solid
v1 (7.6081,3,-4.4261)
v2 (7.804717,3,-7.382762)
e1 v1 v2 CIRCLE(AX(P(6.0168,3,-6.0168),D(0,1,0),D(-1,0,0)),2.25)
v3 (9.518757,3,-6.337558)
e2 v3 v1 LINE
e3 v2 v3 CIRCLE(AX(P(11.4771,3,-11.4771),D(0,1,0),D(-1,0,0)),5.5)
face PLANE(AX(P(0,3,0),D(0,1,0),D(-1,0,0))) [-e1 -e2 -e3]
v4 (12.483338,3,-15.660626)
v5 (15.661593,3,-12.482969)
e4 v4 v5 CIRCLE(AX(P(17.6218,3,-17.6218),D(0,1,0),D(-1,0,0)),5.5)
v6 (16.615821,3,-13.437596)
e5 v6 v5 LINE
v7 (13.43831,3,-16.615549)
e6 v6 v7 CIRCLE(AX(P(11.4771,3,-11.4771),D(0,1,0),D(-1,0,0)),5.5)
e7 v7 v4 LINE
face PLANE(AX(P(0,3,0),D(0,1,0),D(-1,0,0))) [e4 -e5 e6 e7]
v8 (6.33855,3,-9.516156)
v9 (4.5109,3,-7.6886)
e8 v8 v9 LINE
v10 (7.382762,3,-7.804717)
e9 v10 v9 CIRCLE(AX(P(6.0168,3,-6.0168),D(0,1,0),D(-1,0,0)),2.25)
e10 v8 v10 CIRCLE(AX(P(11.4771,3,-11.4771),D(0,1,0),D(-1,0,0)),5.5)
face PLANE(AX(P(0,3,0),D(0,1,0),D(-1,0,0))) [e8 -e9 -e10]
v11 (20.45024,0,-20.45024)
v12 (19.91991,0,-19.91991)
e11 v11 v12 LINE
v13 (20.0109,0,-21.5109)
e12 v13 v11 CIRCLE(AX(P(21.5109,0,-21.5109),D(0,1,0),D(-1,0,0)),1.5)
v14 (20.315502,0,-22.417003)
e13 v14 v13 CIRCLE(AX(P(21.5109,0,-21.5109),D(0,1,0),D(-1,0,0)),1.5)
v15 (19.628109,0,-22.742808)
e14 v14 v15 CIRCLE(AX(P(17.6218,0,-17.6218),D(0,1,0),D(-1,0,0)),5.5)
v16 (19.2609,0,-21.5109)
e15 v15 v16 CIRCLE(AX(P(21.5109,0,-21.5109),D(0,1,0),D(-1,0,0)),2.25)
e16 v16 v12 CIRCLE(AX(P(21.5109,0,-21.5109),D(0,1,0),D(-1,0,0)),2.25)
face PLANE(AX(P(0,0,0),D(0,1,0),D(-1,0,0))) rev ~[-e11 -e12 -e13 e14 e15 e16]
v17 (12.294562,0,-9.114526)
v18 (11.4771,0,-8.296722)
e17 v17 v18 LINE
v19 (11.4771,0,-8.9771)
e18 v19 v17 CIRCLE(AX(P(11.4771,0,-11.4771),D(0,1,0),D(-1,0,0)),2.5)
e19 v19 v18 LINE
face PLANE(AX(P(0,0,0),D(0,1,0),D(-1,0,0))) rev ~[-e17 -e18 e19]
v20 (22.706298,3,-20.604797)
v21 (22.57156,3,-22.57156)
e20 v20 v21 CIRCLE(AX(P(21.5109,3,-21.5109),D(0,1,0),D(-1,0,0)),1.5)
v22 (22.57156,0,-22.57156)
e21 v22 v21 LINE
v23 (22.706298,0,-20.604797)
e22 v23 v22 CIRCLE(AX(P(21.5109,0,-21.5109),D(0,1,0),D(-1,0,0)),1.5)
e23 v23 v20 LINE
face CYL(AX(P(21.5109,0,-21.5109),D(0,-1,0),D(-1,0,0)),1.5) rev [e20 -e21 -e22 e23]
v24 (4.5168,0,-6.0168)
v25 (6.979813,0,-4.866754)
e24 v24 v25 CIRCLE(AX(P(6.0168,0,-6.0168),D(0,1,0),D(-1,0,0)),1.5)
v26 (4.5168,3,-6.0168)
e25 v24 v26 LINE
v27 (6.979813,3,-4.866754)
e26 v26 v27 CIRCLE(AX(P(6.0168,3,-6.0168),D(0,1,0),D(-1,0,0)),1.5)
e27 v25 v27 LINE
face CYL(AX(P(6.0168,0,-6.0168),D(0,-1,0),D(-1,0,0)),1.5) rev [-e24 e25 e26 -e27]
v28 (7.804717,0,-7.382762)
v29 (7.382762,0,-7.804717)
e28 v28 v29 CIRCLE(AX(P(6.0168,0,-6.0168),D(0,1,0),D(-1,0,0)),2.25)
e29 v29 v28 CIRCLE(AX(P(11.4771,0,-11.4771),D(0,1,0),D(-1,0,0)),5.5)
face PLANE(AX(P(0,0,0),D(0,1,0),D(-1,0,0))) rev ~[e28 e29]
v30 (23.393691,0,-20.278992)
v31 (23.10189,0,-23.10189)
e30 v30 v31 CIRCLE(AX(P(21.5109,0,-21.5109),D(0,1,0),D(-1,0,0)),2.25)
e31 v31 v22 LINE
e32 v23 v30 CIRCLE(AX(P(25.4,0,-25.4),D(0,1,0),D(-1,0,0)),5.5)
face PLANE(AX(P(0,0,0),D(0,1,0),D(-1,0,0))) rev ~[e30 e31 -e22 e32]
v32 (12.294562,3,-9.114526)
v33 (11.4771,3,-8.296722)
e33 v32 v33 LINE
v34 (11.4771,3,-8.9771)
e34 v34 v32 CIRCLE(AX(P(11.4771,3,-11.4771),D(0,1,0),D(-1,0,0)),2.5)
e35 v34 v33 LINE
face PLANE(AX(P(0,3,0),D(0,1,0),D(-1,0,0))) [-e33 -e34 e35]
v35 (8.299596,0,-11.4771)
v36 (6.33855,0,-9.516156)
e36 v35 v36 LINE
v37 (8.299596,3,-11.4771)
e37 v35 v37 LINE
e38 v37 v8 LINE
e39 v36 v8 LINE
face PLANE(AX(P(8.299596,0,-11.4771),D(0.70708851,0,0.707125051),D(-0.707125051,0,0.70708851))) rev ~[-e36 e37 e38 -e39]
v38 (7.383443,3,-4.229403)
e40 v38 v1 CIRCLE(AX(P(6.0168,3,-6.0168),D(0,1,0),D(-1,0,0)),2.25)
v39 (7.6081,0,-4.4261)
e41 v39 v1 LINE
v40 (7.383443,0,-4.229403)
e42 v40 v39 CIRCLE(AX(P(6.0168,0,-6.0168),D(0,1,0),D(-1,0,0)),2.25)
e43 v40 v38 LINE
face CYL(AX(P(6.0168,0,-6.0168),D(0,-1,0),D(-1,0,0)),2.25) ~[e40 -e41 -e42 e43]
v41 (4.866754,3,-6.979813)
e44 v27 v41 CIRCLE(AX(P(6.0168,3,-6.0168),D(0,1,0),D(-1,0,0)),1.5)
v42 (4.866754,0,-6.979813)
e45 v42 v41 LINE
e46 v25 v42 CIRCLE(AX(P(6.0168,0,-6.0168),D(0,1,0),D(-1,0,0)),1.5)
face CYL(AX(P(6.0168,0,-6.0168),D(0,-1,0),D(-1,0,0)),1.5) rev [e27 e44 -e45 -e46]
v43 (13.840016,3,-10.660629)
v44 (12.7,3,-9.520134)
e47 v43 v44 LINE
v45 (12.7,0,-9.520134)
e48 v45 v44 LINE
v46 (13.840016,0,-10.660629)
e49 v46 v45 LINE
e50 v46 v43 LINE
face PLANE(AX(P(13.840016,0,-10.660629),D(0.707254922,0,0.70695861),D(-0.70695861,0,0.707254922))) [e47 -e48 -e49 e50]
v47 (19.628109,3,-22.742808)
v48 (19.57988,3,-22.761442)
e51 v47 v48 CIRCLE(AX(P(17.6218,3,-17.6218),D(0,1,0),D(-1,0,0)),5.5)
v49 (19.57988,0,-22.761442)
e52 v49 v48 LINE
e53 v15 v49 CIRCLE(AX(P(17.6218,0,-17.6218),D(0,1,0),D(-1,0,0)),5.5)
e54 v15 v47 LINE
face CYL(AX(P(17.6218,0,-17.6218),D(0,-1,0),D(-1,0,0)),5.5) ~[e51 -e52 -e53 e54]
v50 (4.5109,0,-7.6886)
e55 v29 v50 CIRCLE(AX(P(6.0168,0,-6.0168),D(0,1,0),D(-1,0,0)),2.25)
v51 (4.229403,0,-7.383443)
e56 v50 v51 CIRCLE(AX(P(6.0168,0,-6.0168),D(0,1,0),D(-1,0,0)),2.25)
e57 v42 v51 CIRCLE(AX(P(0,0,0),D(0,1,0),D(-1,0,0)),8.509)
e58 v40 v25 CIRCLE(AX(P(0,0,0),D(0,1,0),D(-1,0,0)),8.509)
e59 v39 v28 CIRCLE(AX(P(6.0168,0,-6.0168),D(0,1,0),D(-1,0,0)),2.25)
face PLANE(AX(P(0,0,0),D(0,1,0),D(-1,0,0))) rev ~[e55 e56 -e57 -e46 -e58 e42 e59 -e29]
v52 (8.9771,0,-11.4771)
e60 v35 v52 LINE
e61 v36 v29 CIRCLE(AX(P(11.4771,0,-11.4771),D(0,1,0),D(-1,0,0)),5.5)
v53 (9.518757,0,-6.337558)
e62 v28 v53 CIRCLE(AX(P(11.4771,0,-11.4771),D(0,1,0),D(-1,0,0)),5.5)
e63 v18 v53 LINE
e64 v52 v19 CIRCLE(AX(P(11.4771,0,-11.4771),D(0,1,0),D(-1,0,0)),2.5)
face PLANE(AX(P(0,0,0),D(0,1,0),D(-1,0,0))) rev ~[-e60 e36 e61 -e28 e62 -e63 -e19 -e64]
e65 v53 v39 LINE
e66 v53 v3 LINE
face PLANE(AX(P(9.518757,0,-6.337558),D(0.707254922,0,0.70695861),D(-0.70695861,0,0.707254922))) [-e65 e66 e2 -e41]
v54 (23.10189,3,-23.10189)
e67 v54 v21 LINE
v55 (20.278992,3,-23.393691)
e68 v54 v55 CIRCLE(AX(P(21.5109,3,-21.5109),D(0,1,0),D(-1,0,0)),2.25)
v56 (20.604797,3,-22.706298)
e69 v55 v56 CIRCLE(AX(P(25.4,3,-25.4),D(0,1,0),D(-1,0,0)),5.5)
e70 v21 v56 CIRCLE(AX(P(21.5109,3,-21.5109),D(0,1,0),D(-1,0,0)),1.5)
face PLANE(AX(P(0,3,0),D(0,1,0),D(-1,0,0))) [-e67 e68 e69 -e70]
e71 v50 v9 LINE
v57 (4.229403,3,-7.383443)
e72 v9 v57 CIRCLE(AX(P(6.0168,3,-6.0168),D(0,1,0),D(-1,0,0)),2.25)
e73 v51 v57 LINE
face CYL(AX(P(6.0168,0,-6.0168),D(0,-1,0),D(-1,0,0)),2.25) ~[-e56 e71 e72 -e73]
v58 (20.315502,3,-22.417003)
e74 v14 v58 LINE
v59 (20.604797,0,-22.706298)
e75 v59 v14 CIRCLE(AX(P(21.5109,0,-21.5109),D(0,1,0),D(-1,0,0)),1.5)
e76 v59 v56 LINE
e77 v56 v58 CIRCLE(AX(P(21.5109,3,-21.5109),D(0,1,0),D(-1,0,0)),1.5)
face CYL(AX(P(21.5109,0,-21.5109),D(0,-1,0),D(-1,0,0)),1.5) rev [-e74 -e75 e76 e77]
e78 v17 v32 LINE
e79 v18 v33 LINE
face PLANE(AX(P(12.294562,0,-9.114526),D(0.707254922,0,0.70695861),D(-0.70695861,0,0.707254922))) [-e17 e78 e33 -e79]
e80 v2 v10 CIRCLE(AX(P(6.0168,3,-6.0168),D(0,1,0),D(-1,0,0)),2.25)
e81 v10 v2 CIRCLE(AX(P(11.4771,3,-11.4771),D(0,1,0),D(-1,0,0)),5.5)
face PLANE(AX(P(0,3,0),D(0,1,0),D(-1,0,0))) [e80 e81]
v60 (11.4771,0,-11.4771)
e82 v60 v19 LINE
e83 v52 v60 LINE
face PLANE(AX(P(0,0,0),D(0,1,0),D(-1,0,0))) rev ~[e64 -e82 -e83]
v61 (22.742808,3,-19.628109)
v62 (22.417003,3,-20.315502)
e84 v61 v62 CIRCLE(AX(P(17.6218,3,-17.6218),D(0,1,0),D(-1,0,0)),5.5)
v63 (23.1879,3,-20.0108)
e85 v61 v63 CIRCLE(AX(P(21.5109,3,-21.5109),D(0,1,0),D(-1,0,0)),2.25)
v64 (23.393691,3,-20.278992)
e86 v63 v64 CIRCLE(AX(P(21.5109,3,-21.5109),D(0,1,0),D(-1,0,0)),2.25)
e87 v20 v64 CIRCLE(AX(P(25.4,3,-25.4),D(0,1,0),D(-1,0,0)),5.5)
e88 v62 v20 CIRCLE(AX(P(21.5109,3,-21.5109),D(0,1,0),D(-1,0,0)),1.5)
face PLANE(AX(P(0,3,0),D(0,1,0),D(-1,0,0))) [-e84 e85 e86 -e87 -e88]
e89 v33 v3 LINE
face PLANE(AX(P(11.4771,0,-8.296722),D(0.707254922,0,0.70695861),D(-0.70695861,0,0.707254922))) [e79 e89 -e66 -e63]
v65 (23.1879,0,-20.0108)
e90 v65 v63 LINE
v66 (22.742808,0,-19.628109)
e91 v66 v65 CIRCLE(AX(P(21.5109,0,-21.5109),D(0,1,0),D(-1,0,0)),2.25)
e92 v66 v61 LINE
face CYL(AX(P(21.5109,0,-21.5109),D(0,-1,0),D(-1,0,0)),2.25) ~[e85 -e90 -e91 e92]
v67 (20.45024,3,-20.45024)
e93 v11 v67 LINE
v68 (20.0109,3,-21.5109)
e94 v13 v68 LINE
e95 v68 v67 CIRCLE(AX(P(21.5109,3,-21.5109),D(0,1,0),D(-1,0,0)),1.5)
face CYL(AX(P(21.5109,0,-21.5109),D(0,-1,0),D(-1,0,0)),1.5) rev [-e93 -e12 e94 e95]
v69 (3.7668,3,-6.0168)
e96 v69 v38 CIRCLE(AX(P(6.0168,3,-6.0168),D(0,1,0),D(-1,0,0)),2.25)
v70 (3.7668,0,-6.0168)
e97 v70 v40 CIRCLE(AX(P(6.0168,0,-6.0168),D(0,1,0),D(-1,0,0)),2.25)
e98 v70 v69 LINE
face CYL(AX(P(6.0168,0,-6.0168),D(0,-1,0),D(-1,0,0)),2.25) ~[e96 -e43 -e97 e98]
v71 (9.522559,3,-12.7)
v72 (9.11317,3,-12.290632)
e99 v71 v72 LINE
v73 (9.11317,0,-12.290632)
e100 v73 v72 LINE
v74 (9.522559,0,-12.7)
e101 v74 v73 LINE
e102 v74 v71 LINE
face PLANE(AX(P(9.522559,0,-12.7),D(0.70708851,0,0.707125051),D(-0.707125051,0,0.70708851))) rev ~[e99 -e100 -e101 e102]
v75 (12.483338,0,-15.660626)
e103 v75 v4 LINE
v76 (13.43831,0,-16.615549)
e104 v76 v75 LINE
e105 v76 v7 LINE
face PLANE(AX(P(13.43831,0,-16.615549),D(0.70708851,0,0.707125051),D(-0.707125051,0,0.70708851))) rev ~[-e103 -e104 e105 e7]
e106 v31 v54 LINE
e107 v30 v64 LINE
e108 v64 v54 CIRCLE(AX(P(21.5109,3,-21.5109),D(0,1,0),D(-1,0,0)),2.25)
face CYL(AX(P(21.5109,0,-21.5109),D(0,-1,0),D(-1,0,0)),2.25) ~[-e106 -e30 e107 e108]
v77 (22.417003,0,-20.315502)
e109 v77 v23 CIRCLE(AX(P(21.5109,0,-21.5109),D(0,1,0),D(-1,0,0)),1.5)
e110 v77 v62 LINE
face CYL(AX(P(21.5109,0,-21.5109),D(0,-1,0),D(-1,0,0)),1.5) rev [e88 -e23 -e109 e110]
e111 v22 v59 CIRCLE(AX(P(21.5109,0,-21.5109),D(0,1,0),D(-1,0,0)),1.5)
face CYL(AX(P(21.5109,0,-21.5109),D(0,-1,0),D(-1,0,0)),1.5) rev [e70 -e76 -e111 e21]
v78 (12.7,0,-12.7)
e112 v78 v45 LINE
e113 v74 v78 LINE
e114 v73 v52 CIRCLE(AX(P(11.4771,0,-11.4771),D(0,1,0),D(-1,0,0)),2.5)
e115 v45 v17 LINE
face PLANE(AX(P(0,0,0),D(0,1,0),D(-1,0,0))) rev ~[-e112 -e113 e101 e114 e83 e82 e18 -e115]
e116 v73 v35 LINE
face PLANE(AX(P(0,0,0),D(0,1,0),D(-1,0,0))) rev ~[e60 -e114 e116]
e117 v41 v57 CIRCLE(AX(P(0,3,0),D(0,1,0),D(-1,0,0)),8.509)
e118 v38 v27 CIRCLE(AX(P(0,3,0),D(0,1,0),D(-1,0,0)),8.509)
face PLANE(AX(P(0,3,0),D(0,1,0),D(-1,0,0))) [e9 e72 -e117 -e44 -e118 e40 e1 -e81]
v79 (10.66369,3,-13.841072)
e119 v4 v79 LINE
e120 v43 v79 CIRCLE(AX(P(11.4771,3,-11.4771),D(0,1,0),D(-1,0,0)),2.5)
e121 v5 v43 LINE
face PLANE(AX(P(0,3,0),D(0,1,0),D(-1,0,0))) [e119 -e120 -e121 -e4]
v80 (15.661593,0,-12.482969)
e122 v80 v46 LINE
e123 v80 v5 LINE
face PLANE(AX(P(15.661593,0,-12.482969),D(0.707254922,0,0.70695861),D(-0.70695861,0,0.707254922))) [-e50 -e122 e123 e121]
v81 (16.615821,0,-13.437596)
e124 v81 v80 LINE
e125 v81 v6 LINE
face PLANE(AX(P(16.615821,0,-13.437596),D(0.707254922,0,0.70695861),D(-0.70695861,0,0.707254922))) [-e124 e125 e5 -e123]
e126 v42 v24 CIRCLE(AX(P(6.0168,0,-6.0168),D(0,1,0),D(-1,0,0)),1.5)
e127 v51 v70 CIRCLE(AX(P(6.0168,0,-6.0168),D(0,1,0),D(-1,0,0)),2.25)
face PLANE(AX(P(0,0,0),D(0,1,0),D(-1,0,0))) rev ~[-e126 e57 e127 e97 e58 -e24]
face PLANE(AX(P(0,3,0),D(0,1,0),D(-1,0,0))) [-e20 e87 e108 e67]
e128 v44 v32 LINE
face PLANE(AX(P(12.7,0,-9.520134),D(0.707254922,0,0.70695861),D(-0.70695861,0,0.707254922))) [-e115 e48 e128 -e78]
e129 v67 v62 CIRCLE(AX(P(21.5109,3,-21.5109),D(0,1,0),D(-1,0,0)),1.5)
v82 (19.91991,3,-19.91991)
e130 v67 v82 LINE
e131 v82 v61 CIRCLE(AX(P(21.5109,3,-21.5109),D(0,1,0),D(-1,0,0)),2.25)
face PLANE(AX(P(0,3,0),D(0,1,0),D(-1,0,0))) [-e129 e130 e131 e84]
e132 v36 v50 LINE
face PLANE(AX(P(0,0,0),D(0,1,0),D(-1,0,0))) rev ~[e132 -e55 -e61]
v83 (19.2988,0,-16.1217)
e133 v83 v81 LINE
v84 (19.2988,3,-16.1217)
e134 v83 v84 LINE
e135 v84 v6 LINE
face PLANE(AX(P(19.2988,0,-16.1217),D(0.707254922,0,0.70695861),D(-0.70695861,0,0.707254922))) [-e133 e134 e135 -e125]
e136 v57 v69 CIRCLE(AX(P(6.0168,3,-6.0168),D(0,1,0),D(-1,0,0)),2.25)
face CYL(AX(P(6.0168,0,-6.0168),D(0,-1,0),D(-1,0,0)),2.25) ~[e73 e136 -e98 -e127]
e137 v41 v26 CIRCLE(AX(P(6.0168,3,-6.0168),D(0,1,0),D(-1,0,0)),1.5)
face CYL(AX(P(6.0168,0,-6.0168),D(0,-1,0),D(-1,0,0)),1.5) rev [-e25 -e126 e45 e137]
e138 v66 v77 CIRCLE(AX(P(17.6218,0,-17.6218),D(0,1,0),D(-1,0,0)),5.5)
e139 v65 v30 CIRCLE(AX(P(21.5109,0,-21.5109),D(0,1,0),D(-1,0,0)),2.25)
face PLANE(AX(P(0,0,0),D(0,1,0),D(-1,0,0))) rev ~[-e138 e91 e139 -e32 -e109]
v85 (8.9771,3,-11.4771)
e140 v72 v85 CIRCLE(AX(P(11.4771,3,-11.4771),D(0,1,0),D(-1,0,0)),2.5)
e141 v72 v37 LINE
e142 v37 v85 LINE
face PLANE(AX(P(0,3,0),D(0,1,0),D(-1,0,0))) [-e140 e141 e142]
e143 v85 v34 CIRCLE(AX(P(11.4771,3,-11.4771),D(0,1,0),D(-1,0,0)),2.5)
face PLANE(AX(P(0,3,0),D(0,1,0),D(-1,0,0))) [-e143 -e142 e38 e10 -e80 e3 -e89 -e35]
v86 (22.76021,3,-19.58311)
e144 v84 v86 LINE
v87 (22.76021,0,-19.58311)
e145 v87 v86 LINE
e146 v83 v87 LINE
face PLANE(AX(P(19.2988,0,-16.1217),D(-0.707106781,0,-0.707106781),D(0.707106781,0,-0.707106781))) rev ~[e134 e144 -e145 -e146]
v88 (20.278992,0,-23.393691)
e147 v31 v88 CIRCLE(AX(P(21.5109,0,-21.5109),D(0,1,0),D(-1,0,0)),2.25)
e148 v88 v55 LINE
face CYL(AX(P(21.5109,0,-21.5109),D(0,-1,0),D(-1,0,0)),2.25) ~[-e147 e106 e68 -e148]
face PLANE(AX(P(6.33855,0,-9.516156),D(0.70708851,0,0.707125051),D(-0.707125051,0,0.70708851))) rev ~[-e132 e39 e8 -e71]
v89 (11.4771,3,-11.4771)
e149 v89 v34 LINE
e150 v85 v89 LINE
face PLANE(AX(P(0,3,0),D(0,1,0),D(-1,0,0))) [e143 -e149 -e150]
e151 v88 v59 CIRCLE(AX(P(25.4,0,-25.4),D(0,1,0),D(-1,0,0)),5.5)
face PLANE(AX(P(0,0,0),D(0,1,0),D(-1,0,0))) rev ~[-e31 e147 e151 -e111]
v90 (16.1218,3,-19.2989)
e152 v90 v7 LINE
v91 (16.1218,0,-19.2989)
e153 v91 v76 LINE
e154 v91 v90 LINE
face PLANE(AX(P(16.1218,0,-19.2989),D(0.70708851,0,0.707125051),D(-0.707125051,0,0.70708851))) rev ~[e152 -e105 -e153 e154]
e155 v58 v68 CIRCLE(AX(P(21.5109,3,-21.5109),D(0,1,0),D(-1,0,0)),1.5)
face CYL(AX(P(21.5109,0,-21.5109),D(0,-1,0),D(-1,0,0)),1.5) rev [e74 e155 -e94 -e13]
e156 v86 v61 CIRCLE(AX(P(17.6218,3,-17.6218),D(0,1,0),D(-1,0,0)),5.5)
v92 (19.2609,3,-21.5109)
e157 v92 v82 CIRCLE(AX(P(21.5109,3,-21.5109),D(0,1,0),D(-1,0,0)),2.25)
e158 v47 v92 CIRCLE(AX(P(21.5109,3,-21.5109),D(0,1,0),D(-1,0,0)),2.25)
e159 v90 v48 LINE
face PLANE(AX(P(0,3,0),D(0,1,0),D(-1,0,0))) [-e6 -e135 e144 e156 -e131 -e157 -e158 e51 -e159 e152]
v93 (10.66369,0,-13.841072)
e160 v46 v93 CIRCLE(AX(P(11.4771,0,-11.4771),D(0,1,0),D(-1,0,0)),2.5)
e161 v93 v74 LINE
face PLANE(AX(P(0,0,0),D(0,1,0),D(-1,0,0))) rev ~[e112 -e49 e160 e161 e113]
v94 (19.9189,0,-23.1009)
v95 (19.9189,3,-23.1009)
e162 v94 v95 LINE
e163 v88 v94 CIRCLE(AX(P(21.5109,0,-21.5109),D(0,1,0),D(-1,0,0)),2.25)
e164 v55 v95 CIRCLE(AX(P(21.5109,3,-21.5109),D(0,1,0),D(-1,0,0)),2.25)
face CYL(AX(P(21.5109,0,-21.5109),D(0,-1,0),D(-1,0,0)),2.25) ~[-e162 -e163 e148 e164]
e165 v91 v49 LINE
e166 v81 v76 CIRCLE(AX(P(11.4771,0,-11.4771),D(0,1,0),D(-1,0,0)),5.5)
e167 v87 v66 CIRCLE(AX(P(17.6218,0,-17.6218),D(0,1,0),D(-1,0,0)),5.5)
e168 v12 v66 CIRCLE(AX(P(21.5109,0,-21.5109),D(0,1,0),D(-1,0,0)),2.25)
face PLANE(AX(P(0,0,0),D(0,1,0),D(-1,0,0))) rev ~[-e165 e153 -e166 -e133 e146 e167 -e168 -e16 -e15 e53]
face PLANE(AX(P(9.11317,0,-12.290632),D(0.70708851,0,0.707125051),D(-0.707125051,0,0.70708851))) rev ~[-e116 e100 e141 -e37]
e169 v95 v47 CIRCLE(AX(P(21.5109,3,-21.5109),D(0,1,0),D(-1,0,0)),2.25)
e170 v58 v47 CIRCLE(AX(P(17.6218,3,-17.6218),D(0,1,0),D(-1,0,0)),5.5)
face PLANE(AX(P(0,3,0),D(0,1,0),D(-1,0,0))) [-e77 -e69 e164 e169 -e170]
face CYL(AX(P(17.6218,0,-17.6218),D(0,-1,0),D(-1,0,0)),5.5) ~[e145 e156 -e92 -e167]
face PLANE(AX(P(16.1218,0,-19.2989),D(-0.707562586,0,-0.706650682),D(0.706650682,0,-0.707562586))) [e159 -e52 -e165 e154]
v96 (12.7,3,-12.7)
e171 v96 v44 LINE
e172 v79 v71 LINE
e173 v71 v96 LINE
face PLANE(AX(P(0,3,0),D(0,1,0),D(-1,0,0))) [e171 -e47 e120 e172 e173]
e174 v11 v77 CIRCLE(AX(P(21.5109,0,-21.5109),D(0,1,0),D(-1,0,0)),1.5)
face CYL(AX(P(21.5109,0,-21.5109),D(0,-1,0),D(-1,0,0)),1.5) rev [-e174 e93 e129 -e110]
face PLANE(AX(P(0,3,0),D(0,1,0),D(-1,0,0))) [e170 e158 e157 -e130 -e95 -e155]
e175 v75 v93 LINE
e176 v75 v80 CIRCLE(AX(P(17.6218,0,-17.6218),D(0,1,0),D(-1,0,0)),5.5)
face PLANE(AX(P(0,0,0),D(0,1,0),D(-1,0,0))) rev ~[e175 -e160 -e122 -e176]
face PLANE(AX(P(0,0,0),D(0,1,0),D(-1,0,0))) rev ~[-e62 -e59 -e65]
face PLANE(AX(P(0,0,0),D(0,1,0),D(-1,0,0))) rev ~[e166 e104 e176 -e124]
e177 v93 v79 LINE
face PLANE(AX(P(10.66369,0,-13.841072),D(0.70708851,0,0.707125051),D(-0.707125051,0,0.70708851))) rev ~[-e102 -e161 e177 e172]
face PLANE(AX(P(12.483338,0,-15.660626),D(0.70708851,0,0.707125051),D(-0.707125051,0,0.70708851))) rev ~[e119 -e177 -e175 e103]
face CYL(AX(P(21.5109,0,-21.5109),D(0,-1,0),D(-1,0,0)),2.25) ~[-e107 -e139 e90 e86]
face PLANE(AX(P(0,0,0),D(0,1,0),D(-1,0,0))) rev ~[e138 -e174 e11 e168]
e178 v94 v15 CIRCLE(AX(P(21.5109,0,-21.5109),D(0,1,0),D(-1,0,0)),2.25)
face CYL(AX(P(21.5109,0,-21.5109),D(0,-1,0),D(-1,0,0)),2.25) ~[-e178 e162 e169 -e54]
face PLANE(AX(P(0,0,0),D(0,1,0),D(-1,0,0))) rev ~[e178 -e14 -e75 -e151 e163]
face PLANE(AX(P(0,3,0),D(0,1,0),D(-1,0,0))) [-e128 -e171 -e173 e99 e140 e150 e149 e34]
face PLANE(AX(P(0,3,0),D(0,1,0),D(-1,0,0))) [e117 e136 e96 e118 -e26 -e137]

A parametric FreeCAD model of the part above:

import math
import FreeCAD as App
import Part
import Sketcher

V = App.Vector
Q = App.Units.Quantity

doc = App.newDocument("Part")
body = doc.addObject("PartDesign::Body", "Body")

# Sketch on XZ plane
sketch1 = body.newObject("Sketcher::SketchObject", "Sketch")
sketch1.AttachmentSupport = (doc.getObject("XZ_Plane"), [""])
sketch1.MapMode = "FlatFace"
sketch1.addGeometry([
    Part.ArcOfCircle(Part.Circle(V(6.0168, -6.0168, 0), V(0, 0, 1), 2.25), math.radians(44.989196), math.radians(227.98856)),  # 0
    Part.LineSegment(V(7.6081, -4.4261, 0), V(19.2988, -16.1217, 0)),  # 1
    Part.LineSegment(V(19.2988, -16.1217, 0), V(22.76021, -19.58311, 0)),  # 2
    Part.ArcOfCircle(Part.Circle(V(17.6218, -17.6218, 0), V(0, 0, 1), 5.5), math.radians(-21.394256), math.radians(-20.891653)),  # 3
    Part.ArcOfCircle(Part.Circle(V(21.5109, -21.5109, 0), V(0, 0, 1), 2.25), math.radians(-146.80332), math.radians(56.80332)),  # 4
    Part.ArcOfCircle(Part.Circle(V(17.6218, -17.6218, 0), V(0, 0, 1), 5.5), math.radians(-69.144366), math.radians(-68.605744)),  # 5
    Part.LineSegment(V(19.57988, -22.761442, 0), V(16.1218, -19.2989, 0)),  # 6
    Part.LineSegment(V(16.1218, -19.2989, 0), V(4.5109, -7.6886, 0)),  # 7
    Part.Circle(V(6.0168, -6.0168, 0), V(0, 0, 1), 1.5),  # 8
    Part.Circle(V(21.5109, -21.5109, 0), V(0, 0, 1), 1.5),  # 9
], False)
sketch1.addConstraint([
    Sketcher.Constraint("Coincident", 0, 1, 1, 1),
    Sketcher.Constraint("Coincident", 1, 2, 2, 1),
    Sketcher.Constraint("Coincident", 2, 2, 3, 2),
    Sketcher.Constraint("Coincident", 3, 1, 4, 2),
    Sketcher.Constraint("Coincident", 4, 1, 5, 2),
    Sketcher.Constraint("Coincident", 5, 1, 6, 1),
    Sketcher.Constraint("Coincident", 6, 2, 7, 1),
    Sketcher.Constraint("Coincident", 7, 2, 0, 2),
    Sketcher.Constraint("Coincident", 5, 3, 3, 3),
    Sketcher.Constraint("Coincident", 8, 3, 0, 3),
    Sketcher.Constraint("Coincident", 9, 3, 4, 3),
    Sketcher.Constraint("Diameter", 8, Q("3 mm")),
    Sketcher.Constraint("Diameter", 9, Q("3 mm")),
    Sketcher.Constraint("Radius", 3, Q("5.5 mm")),
    Sketcher.Constraint("Radius", 5, Q("5.5 mm")),
    Sketcher.Constraint("Radius", 0, Q("2.25 mm")),
    Sketcher.Constraint("Radius", 4, Q("2.25 mm")),
    Sketcher.Constraint("DistanceY", 3, 3, 1, 2, Q("1.5 mm")),
    Sketcher.Constraint("DistanceX", 6, 2, 3, 3, Q("1.5 mm")),
    Sketcher.Constraint("DistanceX", -1, 1, 4, 3, Q("21.511 mm")),
    Sketcher.Constraint("DistanceY", 4, 3, -1, 1, Q("21.511 mm")),
    Sketcher.Constraint("DistanceX", -1, 1, 0, 1, Q("7.608 mm")),
    Sketcher.Constraint("DistanceY", 0, 1, -1, 1, Q("4.426 mm")),
    Sketcher.Constraint("DistanceY", 2, 2, -1, 1, Q("19.583 mm")),
    Sketcher.Constraint("DistanceY", 3, 1, -1, 1, Q("19.628 mm")),
    Sketcher.Constraint("DistanceX", -1, 1, 4, 1, Q("19.628 mm")),
    Sketcher.Constraint("DistanceY", 6, 2, -1, 1, Q("19.299 mm")),
    Sketcher.Constraint("DistanceX", -1, 1, 7, 2, Q("4.511 mm")),
    Sketcher.Constraint("DistanceX", 0, 3, 3, 3, Q("11.605 mm")),
    Sketcher.Constraint("DistanceX", 3, 3, 1, 2, Q("1.677 mm")),
    Sketcher.Constraint("DistanceX", 5, 1, 4, 3, Q("1.931 mm")),
])
pad1 = body.newObject("PartDesign::Pad", "Pad")
pad1.Profile = sketch1
pad1.Length = 3
pad1.Reversed = True

doc.recompute()
